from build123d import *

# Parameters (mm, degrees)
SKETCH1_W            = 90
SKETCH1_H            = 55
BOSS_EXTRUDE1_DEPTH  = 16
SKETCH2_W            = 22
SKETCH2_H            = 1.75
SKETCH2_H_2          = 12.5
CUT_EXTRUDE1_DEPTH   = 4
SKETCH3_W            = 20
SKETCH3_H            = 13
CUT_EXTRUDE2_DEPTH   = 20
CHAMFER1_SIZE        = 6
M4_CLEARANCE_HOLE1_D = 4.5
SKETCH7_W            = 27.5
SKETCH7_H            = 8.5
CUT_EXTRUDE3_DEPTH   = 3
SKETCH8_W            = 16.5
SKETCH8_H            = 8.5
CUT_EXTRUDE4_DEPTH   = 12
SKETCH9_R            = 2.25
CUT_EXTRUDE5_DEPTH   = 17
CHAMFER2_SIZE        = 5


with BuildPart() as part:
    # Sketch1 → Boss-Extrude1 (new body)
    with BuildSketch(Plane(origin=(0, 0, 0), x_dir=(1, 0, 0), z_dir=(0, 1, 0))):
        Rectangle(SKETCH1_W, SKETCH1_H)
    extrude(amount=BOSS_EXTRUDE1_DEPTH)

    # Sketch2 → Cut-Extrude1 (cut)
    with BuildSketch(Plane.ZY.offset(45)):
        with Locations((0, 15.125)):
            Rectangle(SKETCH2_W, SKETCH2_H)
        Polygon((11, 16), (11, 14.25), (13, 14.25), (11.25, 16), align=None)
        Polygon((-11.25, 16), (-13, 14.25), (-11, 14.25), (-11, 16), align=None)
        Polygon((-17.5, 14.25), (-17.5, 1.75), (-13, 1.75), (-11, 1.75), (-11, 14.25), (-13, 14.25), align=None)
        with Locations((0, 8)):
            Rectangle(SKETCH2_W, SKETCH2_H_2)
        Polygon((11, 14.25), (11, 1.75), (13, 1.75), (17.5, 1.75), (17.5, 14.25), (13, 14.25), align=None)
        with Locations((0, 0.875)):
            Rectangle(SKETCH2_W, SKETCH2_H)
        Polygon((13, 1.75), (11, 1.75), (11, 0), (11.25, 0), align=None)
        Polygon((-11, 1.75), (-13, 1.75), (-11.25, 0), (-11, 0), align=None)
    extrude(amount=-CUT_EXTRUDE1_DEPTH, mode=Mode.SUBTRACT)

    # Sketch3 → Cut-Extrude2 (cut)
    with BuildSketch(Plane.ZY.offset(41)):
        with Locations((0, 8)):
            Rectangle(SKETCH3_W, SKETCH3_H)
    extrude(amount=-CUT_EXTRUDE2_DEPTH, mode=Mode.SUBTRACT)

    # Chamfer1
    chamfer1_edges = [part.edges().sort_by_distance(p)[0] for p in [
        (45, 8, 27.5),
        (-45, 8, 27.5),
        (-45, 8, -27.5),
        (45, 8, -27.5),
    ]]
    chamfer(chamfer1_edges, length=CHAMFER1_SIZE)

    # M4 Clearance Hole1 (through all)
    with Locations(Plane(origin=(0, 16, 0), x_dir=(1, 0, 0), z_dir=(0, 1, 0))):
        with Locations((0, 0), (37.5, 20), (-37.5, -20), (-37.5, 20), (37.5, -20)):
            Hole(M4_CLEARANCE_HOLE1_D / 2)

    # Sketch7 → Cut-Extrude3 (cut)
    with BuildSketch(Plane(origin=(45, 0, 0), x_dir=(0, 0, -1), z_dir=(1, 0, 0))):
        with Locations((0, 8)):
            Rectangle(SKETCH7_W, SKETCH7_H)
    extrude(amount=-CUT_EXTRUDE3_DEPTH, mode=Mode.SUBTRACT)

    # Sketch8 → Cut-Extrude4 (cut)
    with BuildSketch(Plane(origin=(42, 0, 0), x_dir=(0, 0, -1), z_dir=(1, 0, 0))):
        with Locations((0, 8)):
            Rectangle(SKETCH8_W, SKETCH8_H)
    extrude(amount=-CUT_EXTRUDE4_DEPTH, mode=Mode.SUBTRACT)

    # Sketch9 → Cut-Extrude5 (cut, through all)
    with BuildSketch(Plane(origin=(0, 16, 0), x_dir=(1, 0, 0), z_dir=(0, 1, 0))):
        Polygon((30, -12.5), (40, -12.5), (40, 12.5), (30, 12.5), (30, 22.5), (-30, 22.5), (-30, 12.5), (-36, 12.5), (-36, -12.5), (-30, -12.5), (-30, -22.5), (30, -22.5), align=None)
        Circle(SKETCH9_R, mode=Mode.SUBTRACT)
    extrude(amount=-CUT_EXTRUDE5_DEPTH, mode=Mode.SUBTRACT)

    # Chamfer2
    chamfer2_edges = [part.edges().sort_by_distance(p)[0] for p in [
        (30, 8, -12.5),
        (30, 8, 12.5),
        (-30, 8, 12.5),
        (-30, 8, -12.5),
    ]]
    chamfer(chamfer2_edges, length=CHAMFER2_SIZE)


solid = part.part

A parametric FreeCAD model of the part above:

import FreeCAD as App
import Part
import Sketcher
from FreeCAD import Vector
Q = App.Units.Quantity


def edges_at(feature, points):
    """Names of the edges that pass closest to the given points."""
    edges = feature.Shape.Edges
    near = lambda p: min(range(len(edges)), key=lambda i: edges[i].distToShape(Part.Vertex(*p))[0])
    return sorted({f"Edge{near(p) + 1}" for p in points})

doc = App.newDocument("Part")
body = doc.addObject("PartDesign::Body", "Body")

# Sketch on XZ plane
sketch1 = body.newObject("Sketcher::SketchObject", "Sketch")
sketch1.AttachmentSupport = (doc.getObject("XZ_Plane"), [""])
sketch1.MapMode = "FlatFace"
sketch1.addGeometry([
    Part.LineSegment(Vector(-45, -27.5, 0), Vector(-45, 27.5, 0)),
    Part.LineSegment(Vector(-45, 27.5, 0), Vector(45, 27.5, 0)),
    Part.LineSegment(Vector(45, 27.5, 0), Vector(45, -27.5, 0)),
    Part.LineSegment(Vector(45, -27.5, 0), Vector(-45, -27.5, 0)),
], False)
sketch1.addConstraint([
    Sketcher.Constraint("Coincident", 0, 2, 1, 1),
    Sketcher.Constraint("Coincident", 1, 2, 2, 1),
    Sketcher.Constraint("Coincident", 2, 2, 3, 1),
    Sketcher.Constraint("Coincident", 3, 2, 0, 1),
    Sketcher.Constraint("Vertical", 0),
    Sketcher.Constraint("Horizontal", 1),
    Sketcher.Constraint("Vertical", 2),
    Sketcher.Constraint("Horizontal", 3),
    Sketcher.Constraint("Symmetric", 0, 2, 2, 2, -1, 1),
    Sketcher.Constraint("DistanceX", 1, 1, 1, 2, Q("90 mm")),
    Sketcher.Constraint("DistanceY", 0, 1, 0, 2, Q("55 mm")),
])
pad1 = body.newObject("PartDesign::Pad", "Pad")
pad1.Profile = sketch1
pad1.Length = 16
pad1.Reversed = True

# Sketch on YZ plane
sketch2 = body.newObject("Sketcher::SketchObject", "Sketch001")
sketch2.AttachmentSupport = (doc.getObject("YZ_Plane"), [""])
sketch2.MapMode = "FlatFace"
sketch2.AttachmentOffset = App.Placement(Vector(0, 0, -45), App.Rotation())
sketch2.addGeometry([
    Part.LineSegment(Vector(14.25, 13, 0), Vector(16, 11.25, 0)),  # 0
    Part.LineSegment(Vector(16, 11.25, 0), Vector(16, -11.25, 0)),  # 1
    Part.LineSegment(Vector(16, -11.25, 0), Vector(14.25, -13, 0)),  # 2
    Part.LineSegment(Vector(14.25, -13, 0), Vector(14.25, -17.5, 0)),  # 3
    Part.LineSegment(Vector(14.25, -17.5, 0), Vector(1.75, -17.5, 0)),  # 4
    Part.LineSegment(Vector(1.75, -17.5, 0), Vector(1.75, -13, 0)),  # 5
    Part.LineSegment(Vector(1.75, -13, 0), Vector(0, -11.25, 0)),  # 6
    Part.LineSegment(Vector(0, -11.25, 0), Vector(0, 11.25, 0)),  # 7
    Part.LineSegment(Vector(0, 11.25, 0), Vector(1.75, 13, 0)),  # 8
    Part.LineSegment(Vector(1.75, 13, 0), Vector(1.75, 17.5, 0)),  # 9
    Part.LineSegment(Vector(1.75, 17.5, 0), Vector(14.25, 17.5, 0)),  # 10
    Part.LineSegment(Vector(14.25, 17.5, 0), Vector(14.25, 13, 0)),  # 11
], False)
sketch2.addConstraint([
    Sketcher.Constraint("Coincident", 0, 2, 1, 1),
    Sketcher.Constraint("Coincident", 1, 2, 2, 1),
    Sketcher.Constraint("Coincident", 2, 2, 3, 1),
    Sketcher.Constraint("Coincident", 3, 2, 4, 1),
    Sketcher.Constraint("Coincident", 4, 2, 5, 1),
    Sketcher.Constraint("Coincident", 5, 2, 6, 1),
    Sketcher.Constraint("Coincident", 6, 2, 7, 1),
    Sketcher.Constraint("Coincident", 7, 2, 8, 1),
    Sketcher.Constraint("Coincident", 8, 2, 9, 1),
    Sketcher.Constraint("Coincident", 9, 2, 10, 1),
    Sketcher.Constraint("Coincident", 10, 2, 11, 1),
    Sketcher.Constraint("Coincident", 11, 2, 0, 1),
    Sketcher.Constraint("Vertical", 1),
    Sketcher.Constraint("Vertical", 3),
    Sketcher.Constraint("Horizontal", 4),
    Sketcher.Constraint("Vertical", 5),
    Sketcher.Constraint("Vertical", 7),
    Sketcher.Constraint("Vertical", 9),
    Sketcher.Constraint("Horizontal", 10),
    Sketcher.Constraint("Vertical", 11),
    Sketcher.Constraint("Symmetric", 6, 2, 7, 2, -1, 1),
    Sketcher.Constraint("Symmetric", 5, 2, 8, 2, -1),
    Sketcher.Constraint("Symmetric", 3, 2, 10, 2, -1),
    Sketcher.Constraint("Perpendicular", 0, 2),
    Sketcher.Constraint("Perpendicular", 2, 6),
    Sketcher.Constraint("Perpendicular", 6, 8),
    Sketcher.Constraint("Horizontal", 2, 2, 5, 2),
    Sketcher.Constraint("Horizontal", 1, 2, 6, 2),
    Sketcher.Constraint("Horizontal", 0, 2, 7, 2),
    Sketcher.Constraint("DistanceX", 4, 2, 4, 1, Q("12.5 mm")),
    Sketcher.Constraint("DistanceY", 1, 2, 1, 1, Q("22.5 mm")),
    Sketcher.Constraint("DistanceY", 3, 2, 3, 1, Q("4.5 mm")),
    Sketcher.Constraint("DistanceX", -1, 1, 0, 2, Q("16 mm")),
])
pocket1 = body.newObject("PartDesign::Pocket", "Pocket")
pocket1.Profile = sketch2
pocket1.Length = 4
pocket1.Reversed = True

# Sketch on YZ plane
sketch3 = body.newObject("Sketcher::SketchObject", "Sketch002")
sketch3.AttachmentSupport = (doc.getObject("YZ_Plane"), [""])
sketch3.MapMode = "FlatFace"
sketch3.AttachmentOffset = App.Placement(Vector(0, 0, -41), App.Rotation())
sketch3.addGeometry([
    Part.LineSegment(Vector(14.5, -10, 0), Vector(1.5, -10, 0)),
    Part.LineSegment(Vector(1.5, -10, 0), Vector(1.5, 10, 0)),
    Part.LineSegment(Vector(1.5, 10, 0), Vector(14.5, 10, 0)),
    Part.LineSegment(Vector(14.5, 10, 0), Vector(14.5, -10, 0)),
], False)
sketch3.addConstraint([
    Sketcher.Constraint("Coincident", 0, 2, 1, 1),
    Sketcher.Constraint("Coincident", 1, 2, 2, 1),
    Sketcher.Constraint("Coincident", 2, 2, 3, 1),
    Sketcher.Constraint("Coincident", 3, 2, 0, 1),
    Sketcher.Constraint("Horizontal", 0),
    Sketcher.Constraint("Vertical", 1),
    Sketcher.Constraint("Horizontal", 2),
    Sketcher.Constraint("Vertical", 3),
    Sketcher.Constraint("DistanceX", 0, 2, 0, 1, Q("13 mm")),
    Sketcher.Constraint("DistanceY", 1, 1, 1, 2, Q("20 mm")),
    Sketcher.Constraint("DistanceY", 0, 2, -1, 1, Q("10 mm")),
    Sketcher.Constraint("DistanceX", -1, 1, 0, 2, Q("1.5 mm")),
])
pocket2 = body.newObject("PartDesign::Pocket", "Pocket001")
pocket2.Profile = sketch3
pocket2.Length = 20
pocket2.Reversed = True
doc.recompute()

chamfer = body.newObject("PartDesign::Chamfer", "Chamfer")
chamfer.Base = (pocket2, edges_at(pocket2, [
    (45, 8, 27.5),
    (-45, 8, 27.5),
    (-45, 8, -27.5),
    (45, 8, -27.5),
]))
chamfer.Size = 6

# Sketch on XZ plane
sketch4 = body.newObject("Sketcher::SketchObject", "Sketch003")
sketch4.AttachmentSupport = (doc.getObject("XZ_Plane"), [""])
sketch4.MapMode = "FlatFace"
sketch4.AttachmentOffset = App.Placement(Vector(0, 0, -16), App.Rotation())
sketch4.addGeometry([
    Part.Circle(Vector(0, 0, 0), Vector(0, 0, 1), 2.25),  # 0
    Part.Circle(Vector(37.5, -20, 0), Vector(0, 0, 1), 2.25),  # 1
    Part.Circle(Vector(-37.5, 20, 0), Vector(0, 0, 1), 2.25),  # 2
    Part.Circle(Vector(-37.5, -20, 0), Vector(0, 0, 1), 2.25),  # 3
    Part.Circle(Vector(37.5, 20, 0), Vector(0, 0, 1), 2.25),  # 4
], False)
sketch4.addConstraint([
    Sketcher.Constraint("Coincident", 0, 3, -1, 1),
    Sketcher.Constraint("Equal", 0, 1),
    Sketcher.Constraint("Equal", 1, 2),
    Sketcher.Constraint("Equal", 2, 3),
    Sketcher.Constraint("Equal", 3, 4),
    Sketcher.Constraint("Symmetric", 1, 3, 2, 3, -1, 1),
    Sketcher.Constraint("Symmetric", 3, 3, 4, 3, -1, 1),
    Sketcher.Constraint("Symmetric", 1, 3, 3, 3, -2),
    Sketcher.Constraint("Diameter", 0, Q("4.5 mm")),
    Sketcher.Constraint("DistanceY", 1, 3, -1, 1, Q("20 mm")),
    Sketcher.Constraint("DistanceX", 2, 3, 1, 3, Q("75 mm")),
])
doc.recompute()
hole = body.newObject("PartDesign::Hole", "Hole")
hole.Profile = sketch4
hole.ThreadType = "None"
hole.Diameter = 4.5
hole.DepthType = "ThroughAll"
hole.Reversed = True

# Sketch on YZ plane
sketch5 = body.newObject("Sketcher::SketchObject", "Sketch004")
sketch5.AttachmentSupport = (doc.getObject("YZ_Plane"), [""])
sketch5.MapMode = "FlatFace"
sketch5.AttachmentOffset = App.Placement(Vector(0, 0, 45), App.Rotation())
sketch5.addGeometry([
    Part.LineSegment(Vector(12.25, 13.75, 0), Vector(3.75, 13.75, 0)),
    Part.LineSegment(Vector(3.75, 13.75, 0), Vector(3.75, -13.75, 0)),
    Part.LineSegment(Vector(3.75, -13.75, 0), Vector(12.25, -13.75, 0)),
    Part.LineSegment(Vector(12.25, -13.75, 0), Vector(12.25, 13.75, 0)),
], False)
sketch5.addConstraint([
    Sketcher.Constraint("Coincident", 0, 2, 1, 1),
    Sketcher.Constraint("Coincident", 1, 2, 2, 1),
    Sketcher.Constraint("Coincident", 2, 2, 3, 1),
    Sketcher.Constraint("Coincident", 3, 2, 0, 1),
    Sketcher.Constraint("Horizontal", 0),
    Sketcher.Constraint("Vertical", 1),
    Sketcher.Constraint("Horizontal", 2),
    Sketcher.Constraint("Vertical", 3),
    Sketcher.Constraint("DistanceX", 0, 2, 0, 1, Q("8.5 mm")),
    Sketcher.Constraint("DistanceY", 1, 2, 1, 1, Q("27.5 mm")),
    Sketcher.Constraint("DistanceX", -1, 1, 0, 2, Q("3.75 mm")),
    Sketcher.Constraint("DistanceY", -1, 1, 0, 2, Q("13.75 mm")),
])
pocket3 = body.newObject("PartDesign::Pocket", "Pocket002")
pocket3.Profile = sketch5
pocket3.Length = 3

# Sketch on YZ plane
sketch6 = body.newObject("Sketcher::SketchObject", "Sketch005")
sketch6.AttachmentSupport = (doc.getObject("YZ_Plane"), [""])
sketch6.MapMode = "FlatFace"
sketch6.AttachmentOffset = App.Placement(Vector(0, 0, 42), App.Rotation())
sketch6.addGeometry([
    Part.LineSegment(Vector(12.25, 8.25, 0), Vector(3.75, 8.25, 0)),
    Part.LineSegment(Vector(3.75, 8.25, 0), Vector(3.75, -8.25, 0)),
    Part.LineSegment(Vector(3.75, -8.25, 0), Vector(12.25, -8.25, 0)),
    Part.LineSegment(Vector(12.25, -8.25, 0), Vector(12.25, 8.25, 0)),
], False)
sketch6.addConstraint([
    Sketcher.Constraint("Coincident", 0, 2, 1, 1),
    Sketcher.Constraint("Coincident", 1, 2, 2, 1),
    Sketcher.Constraint("Coincident", 2, 2, 3, 1),
    Sketcher.Constraint("Coincident", 3, 2, 0, 1),
    Sketcher.Constraint("Horizontal", 0),
    Sketcher.Constraint("Vertical", 1),
    Sketcher.Constraint("Horizontal", 2),
    Sketcher.Constraint("Vertical", 3),
    Sketcher.Constraint("DistanceX", 0, 2, 0, 1, Q("8.5 mm")),
    Sketcher.Constraint("DistanceY", 1, 2, 1, 1, Q("16.5 mm")),
    Sketcher.Constraint("DistanceX", -1, 1, 0, 2, Q("3.75 mm")),
    Sketcher.Constraint("DistanceY", -1, 1, 0, 2, Q("8.25 mm")),
])
pocket4 = body.newObject("PartDesign::Pocket", "Pocket003")
pocket4.Profile = sketch6
pocket4.Length = 12

# Sketch on XZ plane
sketch7 = body.newObject("Sketcher::SketchObject", "Sketch006")
sketch7.AttachmentSupport = (doc.getObject("XZ_Plane"), [""])
sketch7.MapMode = "FlatFace"
sketch7.AttachmentOffset = App.Placement(Vector(0, 0, -16), App.Rotation())
sketch7.addGeometry([
    Part.LineSegment(Vector(30, 12.5, 0), Vector(40, 12.5, 0)),  # 0
    Part.LineSegment(Vector(40, 12.5, 0), Vector(40, -12.5, 0)),  # 1
    Part.LineSegment(Vector(40, -12.5, 0), Vector(30, -12.5, 0)),  # 2
    Part.LineSegment(Vector(30, -12.5, 0), Vector(30, -22.5, 0)),  # 3
    Part.LineSegment(Vector(30, -22.5, 0), Vector(-30, -22.5, 0)),  # 4
    Part.LineSegment(Vector(-30, -22.5, 0), Vector(-30, -12.5, 0)),  # 5
    Part.LineSegment(Vector(-30, -12.5, 0), Vector(-36, -12.5, 0)),  # 6
    Part.LineSegment(Vector(-36, -12.5, 0), Vector(-36, 12.5, 0)),  # 7
    Part.LineSegment(Vector(-36, 12.5, 0), Vector(-30, 12.5, 0)),  # 8
    Part.LineSegment(Vector(-30, 12.5, 0), Vector(-30, 22.5, 0)),  # 9
    Part.LineSegment(Vector(-30, 22.5, 0), Vector(30, 22.5, 0)),  # 10
    Part.LineSegment(Vector(30, 22.5, 0), Vector(30, 12.5, 0)),  # 11
    Part.Circle(Vector(0, 0, 0), Vector(0, 0, 1), 2.25),  # 12
], False)
sketch7.addConstraint([
    Sketcher.Constraint("Coincident", 0, 2, 1, 1),
    Sketcher.Constraint("Coincident", 1, 2, 2, 1),
    Sketcher.Constraint("Coincident", 2, 2, 3, 1),
    Sketcher.Constraint("Coincident", 3, 2, 4, 1),
    Sketcher.Constraint("Coincident", 4, 2, 5, 1),
    Sketcher.Constraint("Coincident", 5, 2, 6, 1),
    Sketcher.Constraint("Coincident", 6, 2, 7, 1),
    Sketcher.Constraint("Coincident", 7, 2, 8, 1),
    Sketcher.Constraint("Coincident", 8, 2, 9, 1),
    Sketcher.Constraint("Coincident", 9, 2, 10, 1),
    Sketcher.Constraint("Coincident", 10, 2, 11, 1),
    Sketcher.Constraint("Coincident", 11, 2, 0, 1),
    Sketcher.Constraint("Horizontal", 0),
    Sketcher.Constraint("Vertical", 1),
    Sketcher.Constraint("Horizontal", 2),
    Sketcher.Constraint("Vertical", 3),
    Sketcher.Constraint("Horizontal", 4),
    Sketcher.Constraint("Vertical", 5),
    Sketcher.Constraint("Horizontal", 6),
    Sketcher.Constraint("Vertical", 7),
    Sketcher.Constraint("Horizontal", 8),
    Sketcher.Constraint("Vertical", 9),
    Sketcher.Constraint("Horizontal", 10),
    Sketcher.Constraint("Vertical", 11),
    Sketcher.Constraint("Coincident", 12, 3, -1, 1),
    Sketcher.Constraint("Symmetric", 2, 2, 8, 2, -1, 1),
    Sketcher.Constraint("Symmetric", 4, 2, 10, 2, -1, 1),
    Sketcher.Constraint("Symmetric", 2, 2, 5, 2, -2),
    Sketcher.Constraint("Horizontal", 0, 2, 7, 2),
    Sketcher.Constraint("Equal", 2, 3),
    Sketcher.Constraint("Diameter", 12, Q("4.5 mm")),
    Sketcher.Constraint("DistanceX", 0, 1, 0, 2, Q("10 mm")),
    Sketcher.Constraint("DistanceX", 4, 2, 4, 1, Q("60 mm")),
    Sketcher.Constraint("DistanceX", 6, 2, 6, 1, Q("6 mm")),
    Sketcher.Constraint("DistanceY", 1, 2, 1, 1, Q("25 mm")),
])
pocket5 = body.newObject("PartDesign::Pocket", "Pocket004")
pocket5.Profile = sketch7
pocket5.Type = "ThroughAll"
pocket5.Reversed = True
doc.recompute()

chamfer2 = body.newObject("PartDesign::Chamfer", "Chamfer001")
chamfer2.Base = (pocket5, edges_at(pocket5, [
    (30, 8, -12.5),
    (30, 8, 12.5),
    (-30, 8, 12.5),
    (-30, 8, -12.5),
]))
chamfer2.Size = 5

doc.recompute()
